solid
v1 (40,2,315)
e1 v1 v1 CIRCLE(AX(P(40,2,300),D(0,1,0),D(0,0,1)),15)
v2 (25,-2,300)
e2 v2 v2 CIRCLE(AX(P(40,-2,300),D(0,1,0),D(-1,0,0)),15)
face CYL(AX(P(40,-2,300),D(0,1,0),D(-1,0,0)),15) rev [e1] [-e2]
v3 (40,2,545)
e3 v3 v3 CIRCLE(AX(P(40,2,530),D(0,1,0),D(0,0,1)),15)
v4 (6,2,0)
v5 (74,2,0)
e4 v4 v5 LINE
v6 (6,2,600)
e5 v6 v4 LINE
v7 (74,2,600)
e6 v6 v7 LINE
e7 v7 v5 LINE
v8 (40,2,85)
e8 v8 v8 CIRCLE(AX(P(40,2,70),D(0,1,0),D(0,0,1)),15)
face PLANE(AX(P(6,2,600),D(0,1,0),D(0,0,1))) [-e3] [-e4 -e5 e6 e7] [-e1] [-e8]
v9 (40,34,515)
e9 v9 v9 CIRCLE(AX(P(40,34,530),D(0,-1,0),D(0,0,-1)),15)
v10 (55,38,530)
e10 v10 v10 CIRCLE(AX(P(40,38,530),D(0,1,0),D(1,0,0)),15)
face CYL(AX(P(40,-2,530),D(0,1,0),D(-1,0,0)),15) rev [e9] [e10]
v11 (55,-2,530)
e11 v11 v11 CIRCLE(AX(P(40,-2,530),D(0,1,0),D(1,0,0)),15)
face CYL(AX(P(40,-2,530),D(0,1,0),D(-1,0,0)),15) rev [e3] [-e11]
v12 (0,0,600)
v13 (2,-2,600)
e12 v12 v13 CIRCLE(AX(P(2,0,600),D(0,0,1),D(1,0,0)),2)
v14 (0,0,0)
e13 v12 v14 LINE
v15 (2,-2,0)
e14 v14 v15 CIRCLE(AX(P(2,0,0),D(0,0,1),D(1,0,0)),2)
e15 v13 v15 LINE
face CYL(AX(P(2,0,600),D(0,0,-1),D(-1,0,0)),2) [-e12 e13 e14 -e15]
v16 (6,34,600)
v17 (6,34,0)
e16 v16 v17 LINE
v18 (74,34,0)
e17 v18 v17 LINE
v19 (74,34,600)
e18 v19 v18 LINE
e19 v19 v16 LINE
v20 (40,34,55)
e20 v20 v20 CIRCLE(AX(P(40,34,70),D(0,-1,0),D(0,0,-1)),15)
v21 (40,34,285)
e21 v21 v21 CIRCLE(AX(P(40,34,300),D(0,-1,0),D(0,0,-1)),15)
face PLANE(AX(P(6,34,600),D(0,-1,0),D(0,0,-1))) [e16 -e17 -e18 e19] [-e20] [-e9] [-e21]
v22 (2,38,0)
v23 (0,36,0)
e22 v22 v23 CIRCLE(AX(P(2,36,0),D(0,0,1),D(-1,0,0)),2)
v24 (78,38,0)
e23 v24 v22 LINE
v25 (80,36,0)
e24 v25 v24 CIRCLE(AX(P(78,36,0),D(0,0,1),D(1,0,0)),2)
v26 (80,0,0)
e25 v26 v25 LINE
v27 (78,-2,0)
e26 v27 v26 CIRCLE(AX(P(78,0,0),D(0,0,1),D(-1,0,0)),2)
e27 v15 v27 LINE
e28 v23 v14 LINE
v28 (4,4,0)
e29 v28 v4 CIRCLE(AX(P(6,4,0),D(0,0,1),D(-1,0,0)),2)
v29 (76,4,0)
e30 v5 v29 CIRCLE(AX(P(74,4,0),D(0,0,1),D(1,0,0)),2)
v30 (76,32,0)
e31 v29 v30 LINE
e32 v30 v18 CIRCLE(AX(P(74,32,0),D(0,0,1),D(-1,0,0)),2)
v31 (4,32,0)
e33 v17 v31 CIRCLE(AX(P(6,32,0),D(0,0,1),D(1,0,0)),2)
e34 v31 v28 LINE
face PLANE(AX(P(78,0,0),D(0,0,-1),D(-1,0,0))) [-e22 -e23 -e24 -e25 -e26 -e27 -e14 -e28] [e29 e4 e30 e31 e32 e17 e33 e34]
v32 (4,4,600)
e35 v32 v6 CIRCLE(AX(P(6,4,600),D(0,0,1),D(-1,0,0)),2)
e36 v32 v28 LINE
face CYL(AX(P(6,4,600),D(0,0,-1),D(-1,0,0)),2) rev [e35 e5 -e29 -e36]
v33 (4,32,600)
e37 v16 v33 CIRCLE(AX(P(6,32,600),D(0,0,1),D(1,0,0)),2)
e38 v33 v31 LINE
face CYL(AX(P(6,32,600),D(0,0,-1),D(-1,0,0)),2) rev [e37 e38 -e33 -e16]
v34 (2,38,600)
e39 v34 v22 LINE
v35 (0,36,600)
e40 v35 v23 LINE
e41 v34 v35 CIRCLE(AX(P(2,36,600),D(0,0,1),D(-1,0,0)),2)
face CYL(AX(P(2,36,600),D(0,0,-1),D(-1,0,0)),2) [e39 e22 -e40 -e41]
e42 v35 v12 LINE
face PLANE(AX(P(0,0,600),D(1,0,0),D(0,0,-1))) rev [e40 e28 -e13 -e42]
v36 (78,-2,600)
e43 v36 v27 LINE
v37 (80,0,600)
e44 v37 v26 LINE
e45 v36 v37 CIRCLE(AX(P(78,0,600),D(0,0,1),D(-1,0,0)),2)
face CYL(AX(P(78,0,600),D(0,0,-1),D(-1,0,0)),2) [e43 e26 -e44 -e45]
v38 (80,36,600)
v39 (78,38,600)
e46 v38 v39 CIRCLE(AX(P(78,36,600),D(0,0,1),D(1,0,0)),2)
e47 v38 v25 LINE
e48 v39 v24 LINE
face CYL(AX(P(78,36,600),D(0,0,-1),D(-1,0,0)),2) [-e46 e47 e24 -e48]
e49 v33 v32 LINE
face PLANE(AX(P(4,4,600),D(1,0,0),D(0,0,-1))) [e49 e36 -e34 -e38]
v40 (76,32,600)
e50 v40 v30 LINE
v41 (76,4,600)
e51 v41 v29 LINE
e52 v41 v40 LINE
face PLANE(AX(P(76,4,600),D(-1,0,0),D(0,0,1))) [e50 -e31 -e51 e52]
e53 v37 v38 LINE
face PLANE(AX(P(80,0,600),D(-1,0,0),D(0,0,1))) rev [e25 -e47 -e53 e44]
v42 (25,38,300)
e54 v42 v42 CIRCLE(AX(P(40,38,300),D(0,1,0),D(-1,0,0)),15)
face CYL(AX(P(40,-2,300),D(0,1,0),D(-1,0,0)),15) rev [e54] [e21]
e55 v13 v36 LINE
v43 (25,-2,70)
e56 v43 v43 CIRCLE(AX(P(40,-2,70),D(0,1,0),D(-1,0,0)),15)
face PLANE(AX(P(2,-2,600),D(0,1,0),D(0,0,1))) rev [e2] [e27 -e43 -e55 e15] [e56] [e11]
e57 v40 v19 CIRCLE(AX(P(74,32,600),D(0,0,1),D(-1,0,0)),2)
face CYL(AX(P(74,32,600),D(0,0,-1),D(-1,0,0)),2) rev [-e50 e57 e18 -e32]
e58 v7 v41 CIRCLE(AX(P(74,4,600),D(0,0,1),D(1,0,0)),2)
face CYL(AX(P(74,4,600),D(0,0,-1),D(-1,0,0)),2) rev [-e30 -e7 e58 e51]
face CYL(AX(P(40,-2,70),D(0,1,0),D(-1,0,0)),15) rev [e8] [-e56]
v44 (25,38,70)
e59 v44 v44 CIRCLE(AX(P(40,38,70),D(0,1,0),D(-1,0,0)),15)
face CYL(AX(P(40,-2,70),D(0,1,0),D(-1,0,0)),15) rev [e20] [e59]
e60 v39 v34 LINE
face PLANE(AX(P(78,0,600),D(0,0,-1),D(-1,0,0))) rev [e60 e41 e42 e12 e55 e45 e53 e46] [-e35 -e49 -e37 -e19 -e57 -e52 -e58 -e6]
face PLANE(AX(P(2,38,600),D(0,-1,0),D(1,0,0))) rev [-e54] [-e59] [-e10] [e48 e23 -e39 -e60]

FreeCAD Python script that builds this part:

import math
import FreeCAD as App
import Part
import Sketcher

V = App.Vector
Q = App.Units.Quantity

doc = App.newDocument("Part")
body = doc.addObject("PartDesign::Body", "Body")

# Sketch on XY plane
sketch1 = body.newObject("Sketcher::SketchObject", "Sketch")
sketch1.AttachmentSupport = (doc.getObject("XY_Plane"), [""])
sketch1.MapMode = "FlatFace"
sketch1.addGeometry([
    Part.LineSegment(V(2, -2, 0), V(78, -2, 0)),  # 0
    Part.ArcOfCircle(Part.Circle(V(78, 0, 0), V(0, 0, 1), 2), math.radians(-90), math.radians(0)),  # 1
    Part.LineSegment(V(80, 0, 0), V(80, 36, 0)),  # 2
    Part.ArcOfCircle(Part.Circle(V(78, 36, 0), V(0, 0, 1), 2), math.radians(0), math.radians(90)),  # 3
    Part.LineSegment(V(78, 38, 0), V(2, 38, 0)),  # 4
    Part.ArcOfCircle(Part.Circle(V(2, 36, 0), V(0, 0, 1), 2), math.radians(90), math.radians(180)),  # 5
    Part.LineSegment(V(0, 36, 0), V(0, 0, 0)),  # 6
    Part.ArcOfCircle(Part.Circle(V(2, 0, 0), V(0, 0, 1), 2), math.radians(-180), math.radians(-90)),  # 7
    Part.ArcOfCircle(Part.Circle(V(6, 4, 0), V(0, 0, 1), 2), math.radians(-180), math.radians(-90)),  # 8
    Part.LineSegment(V(4, 4, 0), V(4, 32, 0)),  # 9
    Part.ArcOfCircle(Part.Circle(V(6, 32, 0), V(0, 0, 1), 2), math.radians(90), math.radians(180)),  # 10
    Part.LineSegment(V(6, 34, 0), V(74, 34, 0)),  # 11
    Part.ArcOfCircle(Part.Circle(V(74, 32, 0), V(0, 0, 1), 2), math.radians(0), math.radians(90)),  # 12
    Part.LineSegment(V(76, 32, 0), V(76, 4, 0)),  # 13
    Part.ArcOfCircle(Part.Circle(V(74, 4, 0), V(0, 0, 1), 2), math.radians(-90), math.radians(0)),  # 14
    Part.LineSegment(V(74, 2, 0), V(6, 2, 0)),  # 15
], False)
sketch1.addConstraint([
    Sketcher.Constraint("Tangent", 0, 2, 1, 1),
    Sketcher.Constraint("Tangent", 1, 2, 2, 1),
    Sketcher.Constraint("Tangent", 2, 2, 3, 1),
    Sketcher.Constraint("Tangent", 3, 2, 4, 1),
    Sketcher.Constraint("Tangent", 4, 2, 5, 1),
    Sketcher.Constraint("Tangent", 5, 2, 6, 1),
    Sketcher.Constraint("Tangent", 6, 2, 7, 1),
    Sketcher.Constraint("Tangent", 7, 2, 0, 1),
    Sketcher.Constraint("Tangent", 8, 1, 9, 1),
    Sketcher.Constraint("Tangent", 9, 2, 10, 2),
    Sketcher.Constraint("Tangent", 10, 1, 11, 1),
    Sketcher.Constraint("Tangent", 11, 2, 12, 2),
    Sketcher.Constraint("Tangent", 12, 1, 13, 1),
    Sketcher.Constraint("Tangent", 13, 2, 14, 2),
    Sketcher.Constraint("Tangent", 14, 1, 15, 1),
    Sketcher.Constraint("Tangent", 15, 2, 8, 2),
    Sketcher.Constraint("Horizontal", 0),
    Sketcher.Constraint("Vertical", 2),
    Sketcher.Constraint("Horizontal", 4),
    Sketcher.Constraint("Vertical", 6),
    Sketcher.Constraint("Vertical", 9),
    Sketcher.Constraint("Horizontal", 11),
    Sketcher.Constraint("Vertical", 13),
    Sketcher.Constraint("Horizontal", 15),
    Sketcher.Constraint("Coincident", 6, 2, -1, 1),
    Sketcher.Constraint("Equal", 1, 3),
    Sketcher.Constraint("Equal", 3, 5),
    Sketcher.Constraint("Equal", 5, 7),
    Sketcher.Constraint("Equal", 7, 8),
    Sketcher.Constraint("Equal", 8, 10),
    Sketcher.Constraint("Equal", 10, 12),
    Sketcher.Constraint("Equal", 12, 14),
    Sketcher.Constraint("Radius", 1, Q("2 mm")),
    Sketcher.Constraint("DistanceX", 0, 1, 0, 2, Q("76 mm")),
    Sketcher.Constraint("DistanceX", 11, 1, 11, 2, Q("68 mm")),
    Sketcher.Constraint("DistanceY", 2, 1, 2, 2, Q("36 mm")),
    Sketcher.Constraint("DistanceY", 9, 1, 9, 2, Q("28 mm")),
    Sketcher.Constraint("DistanceX", -1, 1, 8, 3, Q("6 mm")),
    Sketcher.Constraint("DistanceY", -1, 1, 8, 3, Q("4 mm")),
])
pad1 = body.newObject("PartDesign::Pad", "Pad")
pad1.Profile = sketch1
pad1.Length = 600

# Sketch on XZ plane
sketch2 = body.newObject("Sketcher::SketchObject", "Sketch001")
sketch2.AttachmentSupport = (doc.getObject("XZ_Plane"), [""])
sketch2.MapMode = "FlatFace"
sketch2.AttachmentOffset = App.Placement(V(0, 0, -38), App.Rotation())
sketch2.addGeometry([
    Part.Circle(V(40, 300, 0), V(0, 0, 1), 15),
    Part.Circle(V(40, 70, 0), V(0, 0, 1), 15),
    Part.Circle(V(40, 530, 0), V(0, 0, 1), 15),
], False)
sketch2.addConstraint([
    Sketcher.Constraint("Equal", 0, 1),
    Sketcher.Constraint("Equal", 1, 2),
    Sketcher.Constraint("Vertical", 0, 3, 1, 3),
    Sketcher.Constraint("Vertical", 1, 3, 2, 3),
    Sketcher.Constraint("Diameter", 0, Q("30 mm")),
    Sketcher.Constraint("DistanceX", -1, 1, 0, 3, Q("40 mm")),
    Sketcher.Constraint("DistanceY", -1, 1, 0, 3, Q("300 mm")),
    Sketcher.Constraint("DistanceY", -1, 1, 1, 3, Q("70 mm")),
    Sketcher.Constraint("DistanceY", -1, 1, 2, 3, Q("530 mm")),
])
pocket1 = body.newObject("PartDesign::Pocket", "Pocket")
pocket1.Profile = sketch2
pocket1.Type = "ThroughAll"
pocket1.Reversed = True

doc.recompute()
